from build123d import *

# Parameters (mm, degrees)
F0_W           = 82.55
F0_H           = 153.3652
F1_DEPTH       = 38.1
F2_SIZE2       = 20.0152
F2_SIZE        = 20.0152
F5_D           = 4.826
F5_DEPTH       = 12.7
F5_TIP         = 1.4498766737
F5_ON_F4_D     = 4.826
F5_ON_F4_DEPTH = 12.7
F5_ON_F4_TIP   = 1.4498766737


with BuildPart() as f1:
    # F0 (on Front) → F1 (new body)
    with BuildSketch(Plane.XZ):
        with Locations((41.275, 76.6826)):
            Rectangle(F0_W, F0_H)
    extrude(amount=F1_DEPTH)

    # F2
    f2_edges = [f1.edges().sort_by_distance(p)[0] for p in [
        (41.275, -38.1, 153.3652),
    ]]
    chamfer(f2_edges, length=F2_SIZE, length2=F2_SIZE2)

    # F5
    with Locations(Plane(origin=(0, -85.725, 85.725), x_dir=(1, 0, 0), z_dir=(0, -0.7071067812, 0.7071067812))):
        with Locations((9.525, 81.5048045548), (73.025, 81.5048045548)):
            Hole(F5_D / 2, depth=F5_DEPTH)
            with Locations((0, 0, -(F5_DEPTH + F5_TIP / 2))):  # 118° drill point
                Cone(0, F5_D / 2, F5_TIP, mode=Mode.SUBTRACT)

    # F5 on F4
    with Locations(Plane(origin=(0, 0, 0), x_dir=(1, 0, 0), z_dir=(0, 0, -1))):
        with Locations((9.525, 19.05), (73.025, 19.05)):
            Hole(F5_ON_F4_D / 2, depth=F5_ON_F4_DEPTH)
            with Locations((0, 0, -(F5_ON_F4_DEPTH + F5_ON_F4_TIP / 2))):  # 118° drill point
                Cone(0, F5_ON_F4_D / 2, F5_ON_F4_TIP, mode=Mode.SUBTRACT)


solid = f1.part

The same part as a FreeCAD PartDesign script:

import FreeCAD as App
import Part
import Sketcher
from FreeCAD import Vector
Q = App.Units.Quantity


def edges_at(feature, points):
    """Names of the edges that pass closest to the given points."""
    edges = feature.Shape.Edges
    near = lambda p: min(range(len(edges)), key=lambda i: edges[i].distToShape(Part.Vertex(*p))[0])
    return sorted({f"Edge{near(p) + 1}" for p in points})

doc = App.newDocument("Part")
body = doc.addObject("PartDesign::Body", "Body")

# Sketch on XZ plane
sketch1 = body.newObject("Sketcher::SketchObject", "Sketch")
sketch1.AttachmentSupport = (doc.getObject("XZ_Plane"), [""])
sketch1.MapMode = "FlatFace"
sketch1.addGeometry(Part.LineSegment(Vector(0, 153, 0), Vector(0, 0, 0)), False)
sketch1.addGeometry(Part.LineSegment(Vector(0, 0, 0), Vector(83, 0, 0)), False)
sketch1.addGeometry(Part.LineSegment(Vector(83, 0, 0), Vector(83, 153, 0)), False)
sketch1.addGeometry(Part.LineSegment(Vector(83, 153, 0), Vector(0, 153, 0)), False)
sketch1.addConstraint(Sketcher.Constraint("Coincident", 0, 2, 1, 1))
sketch1.addConstraint(Sketcher.Constraint("Coincident", 1, 2, 2, 1))
sketch1.addConstraint(Sketcher.Constraint("Coincident", 2, 2, 3, 1))
sketch1.addConstraint(Sketcher.Constraint("Coincident", 3, 2, 0, 1))
sketch1.addConstraint(Sketcher.Constraint("Vertical", 0))
sketch1.addConstraint(Sketcher.Constraint("Horizontal", 1))
sketch1.addConstraint(Sketcher.Constraint("Vertical", 2))
sketch1.addConstraint(Sketcher.Constraint("Horizontal", 3))
sketch1.addConstraint(Sketcher.Constraint("Coincident", 0, 2, -1, 1))
sketch1.addConstraint(Sketcher.Constraint("DistanceX", 1, 1, 1, 2, Q("3.25 in")))
sketch1.addConstraint(Sketcher.Constraint("DistanceY", 0, 2, 0, 1, Q("6.038 in")))
pad1 = body.newObject("PartDesign::Pad", "Pad")
pad1.Profile = sketch1
pad1.Length = Q("1.5 in")
doc.recompute()

chamfer = body.newObject("PartDesign::Chamfer", "Chamfer")
chamfer.Base = (pad1, edges_at(pad1, [(41.275, -38.1, 153.365)]))
chamfer.ChamferType = "Two distances"
chamfer.Size = Q("0.788 in")
chamfer.Size2 = Q("0.788 in")

# Sketch on an angled plane
sketch2 = body.newObject("Sketcher::SketchObject", "Sketch001")
sketch2.Placement = App.Placement(Vector(0, -85.725, 85.725), App.Rotation(Vector(1, 0, 0), Vector(0, 0.707106781, 0.707106781), Vector(0, -0.707106781, 0.707106781), "ZXY"))
sketch2.addGeometry(Part.Circle(Vector(9.5, 81.5, 0), Vector(0, 0, 1), 2.4), False)
sketch2.addGeometry(Part.Circle(Vector(73, 81.5, 0), Vector(0, 0, 1), 2.4), False)
sketch2.addConstraint(Sketcher.Constraint("Equal", 0, 1))
sketch2.addConstraint(Sketcher.Constraint("Horizontal", 0, 3, 1, 3))
sketch2.addConstraint(Sketcher.Constraint("Diameter", 0, Q("0.19 in")))
sketch2.addConstraint(Sketcher.Constraint("DistanceX", 0, 3, 1, 3, Q("2.5 in")))
sketch2.addConstraint(Sketcher.Constraint("DistanceX", -1, 1, 0, 3, Q("0.375 in")))
sketch2.addConstraint(Sketcher.Constraint("DistanceY", -1, 1, 0, 3, Q("81.504805 mm")))
doc.recompute()
hole = body.newObject("PartDesign::Hole", "Hole")
hole.Profile = sketch2
hole.ThreadType = "None"
hole.Diameter = Q("0.19 in")
hole.DepthType = "Dimension"
hole.Depth = Q("0.5 in")
hole.DrillPoint = "Angled"
hole.DrillPointAngle = 118

# Sketch on XY plane
sketch3 = body.newObject("Sketcher::SketchObject", "Sketch002")
sketch3.AttachmentSupport = (doc.getObject("XY_Plane"), [""])
sketch3.MapMode = "FlatFace"
sketch3.addGeometry(Part.Circle(Vector(9.5, -19.1, 0), Vector(0, 0, 1), 2.4), False)
sketch3.addGeometry(Part.Circle(Vector(73, -19.1, 0), Vector(0, 0, 1), 2.4), False)
sketch3.addConstraint(Sketcher.Constraint("Equal", 0, 1))
sketch3.addConstraint(Sketcher.Constraint("Horizontal", 0, 3, 1, 3))
sketch3.addConstraint(Sketcher.Constraint("Diameter", 0, Q("0.19 in")))
sketch3.addConstraint(Sketcher.Constraint("DistanceX", 0, 3, 1, 3, Q("2.5 in")))
sketch3.addConstraint(Sketcher.Constraint("DistanceY", 0, 3, -1, 1, Q("0.75 in")))
sketch3.addConstraint(Sketcher.Constraint("DistanceX", -1, 1, 0, 3, Q("0.375 in")))
doc.recompute()
hole2 = body.newObject("PartDesign::Hole", "Hole001")
hole2.Profile = sketch3
hole2.ThreadType = "None"
hole2.Diameter = Q("0.19 in")
hole2.DepthType = "Dimension"
hole2.Depth = Q("0.5 in")
hole2.DrillPoint = "Angled"
hole2.DrillPointAngle = 118
hole2.Reversed = True

doc.recompute()
